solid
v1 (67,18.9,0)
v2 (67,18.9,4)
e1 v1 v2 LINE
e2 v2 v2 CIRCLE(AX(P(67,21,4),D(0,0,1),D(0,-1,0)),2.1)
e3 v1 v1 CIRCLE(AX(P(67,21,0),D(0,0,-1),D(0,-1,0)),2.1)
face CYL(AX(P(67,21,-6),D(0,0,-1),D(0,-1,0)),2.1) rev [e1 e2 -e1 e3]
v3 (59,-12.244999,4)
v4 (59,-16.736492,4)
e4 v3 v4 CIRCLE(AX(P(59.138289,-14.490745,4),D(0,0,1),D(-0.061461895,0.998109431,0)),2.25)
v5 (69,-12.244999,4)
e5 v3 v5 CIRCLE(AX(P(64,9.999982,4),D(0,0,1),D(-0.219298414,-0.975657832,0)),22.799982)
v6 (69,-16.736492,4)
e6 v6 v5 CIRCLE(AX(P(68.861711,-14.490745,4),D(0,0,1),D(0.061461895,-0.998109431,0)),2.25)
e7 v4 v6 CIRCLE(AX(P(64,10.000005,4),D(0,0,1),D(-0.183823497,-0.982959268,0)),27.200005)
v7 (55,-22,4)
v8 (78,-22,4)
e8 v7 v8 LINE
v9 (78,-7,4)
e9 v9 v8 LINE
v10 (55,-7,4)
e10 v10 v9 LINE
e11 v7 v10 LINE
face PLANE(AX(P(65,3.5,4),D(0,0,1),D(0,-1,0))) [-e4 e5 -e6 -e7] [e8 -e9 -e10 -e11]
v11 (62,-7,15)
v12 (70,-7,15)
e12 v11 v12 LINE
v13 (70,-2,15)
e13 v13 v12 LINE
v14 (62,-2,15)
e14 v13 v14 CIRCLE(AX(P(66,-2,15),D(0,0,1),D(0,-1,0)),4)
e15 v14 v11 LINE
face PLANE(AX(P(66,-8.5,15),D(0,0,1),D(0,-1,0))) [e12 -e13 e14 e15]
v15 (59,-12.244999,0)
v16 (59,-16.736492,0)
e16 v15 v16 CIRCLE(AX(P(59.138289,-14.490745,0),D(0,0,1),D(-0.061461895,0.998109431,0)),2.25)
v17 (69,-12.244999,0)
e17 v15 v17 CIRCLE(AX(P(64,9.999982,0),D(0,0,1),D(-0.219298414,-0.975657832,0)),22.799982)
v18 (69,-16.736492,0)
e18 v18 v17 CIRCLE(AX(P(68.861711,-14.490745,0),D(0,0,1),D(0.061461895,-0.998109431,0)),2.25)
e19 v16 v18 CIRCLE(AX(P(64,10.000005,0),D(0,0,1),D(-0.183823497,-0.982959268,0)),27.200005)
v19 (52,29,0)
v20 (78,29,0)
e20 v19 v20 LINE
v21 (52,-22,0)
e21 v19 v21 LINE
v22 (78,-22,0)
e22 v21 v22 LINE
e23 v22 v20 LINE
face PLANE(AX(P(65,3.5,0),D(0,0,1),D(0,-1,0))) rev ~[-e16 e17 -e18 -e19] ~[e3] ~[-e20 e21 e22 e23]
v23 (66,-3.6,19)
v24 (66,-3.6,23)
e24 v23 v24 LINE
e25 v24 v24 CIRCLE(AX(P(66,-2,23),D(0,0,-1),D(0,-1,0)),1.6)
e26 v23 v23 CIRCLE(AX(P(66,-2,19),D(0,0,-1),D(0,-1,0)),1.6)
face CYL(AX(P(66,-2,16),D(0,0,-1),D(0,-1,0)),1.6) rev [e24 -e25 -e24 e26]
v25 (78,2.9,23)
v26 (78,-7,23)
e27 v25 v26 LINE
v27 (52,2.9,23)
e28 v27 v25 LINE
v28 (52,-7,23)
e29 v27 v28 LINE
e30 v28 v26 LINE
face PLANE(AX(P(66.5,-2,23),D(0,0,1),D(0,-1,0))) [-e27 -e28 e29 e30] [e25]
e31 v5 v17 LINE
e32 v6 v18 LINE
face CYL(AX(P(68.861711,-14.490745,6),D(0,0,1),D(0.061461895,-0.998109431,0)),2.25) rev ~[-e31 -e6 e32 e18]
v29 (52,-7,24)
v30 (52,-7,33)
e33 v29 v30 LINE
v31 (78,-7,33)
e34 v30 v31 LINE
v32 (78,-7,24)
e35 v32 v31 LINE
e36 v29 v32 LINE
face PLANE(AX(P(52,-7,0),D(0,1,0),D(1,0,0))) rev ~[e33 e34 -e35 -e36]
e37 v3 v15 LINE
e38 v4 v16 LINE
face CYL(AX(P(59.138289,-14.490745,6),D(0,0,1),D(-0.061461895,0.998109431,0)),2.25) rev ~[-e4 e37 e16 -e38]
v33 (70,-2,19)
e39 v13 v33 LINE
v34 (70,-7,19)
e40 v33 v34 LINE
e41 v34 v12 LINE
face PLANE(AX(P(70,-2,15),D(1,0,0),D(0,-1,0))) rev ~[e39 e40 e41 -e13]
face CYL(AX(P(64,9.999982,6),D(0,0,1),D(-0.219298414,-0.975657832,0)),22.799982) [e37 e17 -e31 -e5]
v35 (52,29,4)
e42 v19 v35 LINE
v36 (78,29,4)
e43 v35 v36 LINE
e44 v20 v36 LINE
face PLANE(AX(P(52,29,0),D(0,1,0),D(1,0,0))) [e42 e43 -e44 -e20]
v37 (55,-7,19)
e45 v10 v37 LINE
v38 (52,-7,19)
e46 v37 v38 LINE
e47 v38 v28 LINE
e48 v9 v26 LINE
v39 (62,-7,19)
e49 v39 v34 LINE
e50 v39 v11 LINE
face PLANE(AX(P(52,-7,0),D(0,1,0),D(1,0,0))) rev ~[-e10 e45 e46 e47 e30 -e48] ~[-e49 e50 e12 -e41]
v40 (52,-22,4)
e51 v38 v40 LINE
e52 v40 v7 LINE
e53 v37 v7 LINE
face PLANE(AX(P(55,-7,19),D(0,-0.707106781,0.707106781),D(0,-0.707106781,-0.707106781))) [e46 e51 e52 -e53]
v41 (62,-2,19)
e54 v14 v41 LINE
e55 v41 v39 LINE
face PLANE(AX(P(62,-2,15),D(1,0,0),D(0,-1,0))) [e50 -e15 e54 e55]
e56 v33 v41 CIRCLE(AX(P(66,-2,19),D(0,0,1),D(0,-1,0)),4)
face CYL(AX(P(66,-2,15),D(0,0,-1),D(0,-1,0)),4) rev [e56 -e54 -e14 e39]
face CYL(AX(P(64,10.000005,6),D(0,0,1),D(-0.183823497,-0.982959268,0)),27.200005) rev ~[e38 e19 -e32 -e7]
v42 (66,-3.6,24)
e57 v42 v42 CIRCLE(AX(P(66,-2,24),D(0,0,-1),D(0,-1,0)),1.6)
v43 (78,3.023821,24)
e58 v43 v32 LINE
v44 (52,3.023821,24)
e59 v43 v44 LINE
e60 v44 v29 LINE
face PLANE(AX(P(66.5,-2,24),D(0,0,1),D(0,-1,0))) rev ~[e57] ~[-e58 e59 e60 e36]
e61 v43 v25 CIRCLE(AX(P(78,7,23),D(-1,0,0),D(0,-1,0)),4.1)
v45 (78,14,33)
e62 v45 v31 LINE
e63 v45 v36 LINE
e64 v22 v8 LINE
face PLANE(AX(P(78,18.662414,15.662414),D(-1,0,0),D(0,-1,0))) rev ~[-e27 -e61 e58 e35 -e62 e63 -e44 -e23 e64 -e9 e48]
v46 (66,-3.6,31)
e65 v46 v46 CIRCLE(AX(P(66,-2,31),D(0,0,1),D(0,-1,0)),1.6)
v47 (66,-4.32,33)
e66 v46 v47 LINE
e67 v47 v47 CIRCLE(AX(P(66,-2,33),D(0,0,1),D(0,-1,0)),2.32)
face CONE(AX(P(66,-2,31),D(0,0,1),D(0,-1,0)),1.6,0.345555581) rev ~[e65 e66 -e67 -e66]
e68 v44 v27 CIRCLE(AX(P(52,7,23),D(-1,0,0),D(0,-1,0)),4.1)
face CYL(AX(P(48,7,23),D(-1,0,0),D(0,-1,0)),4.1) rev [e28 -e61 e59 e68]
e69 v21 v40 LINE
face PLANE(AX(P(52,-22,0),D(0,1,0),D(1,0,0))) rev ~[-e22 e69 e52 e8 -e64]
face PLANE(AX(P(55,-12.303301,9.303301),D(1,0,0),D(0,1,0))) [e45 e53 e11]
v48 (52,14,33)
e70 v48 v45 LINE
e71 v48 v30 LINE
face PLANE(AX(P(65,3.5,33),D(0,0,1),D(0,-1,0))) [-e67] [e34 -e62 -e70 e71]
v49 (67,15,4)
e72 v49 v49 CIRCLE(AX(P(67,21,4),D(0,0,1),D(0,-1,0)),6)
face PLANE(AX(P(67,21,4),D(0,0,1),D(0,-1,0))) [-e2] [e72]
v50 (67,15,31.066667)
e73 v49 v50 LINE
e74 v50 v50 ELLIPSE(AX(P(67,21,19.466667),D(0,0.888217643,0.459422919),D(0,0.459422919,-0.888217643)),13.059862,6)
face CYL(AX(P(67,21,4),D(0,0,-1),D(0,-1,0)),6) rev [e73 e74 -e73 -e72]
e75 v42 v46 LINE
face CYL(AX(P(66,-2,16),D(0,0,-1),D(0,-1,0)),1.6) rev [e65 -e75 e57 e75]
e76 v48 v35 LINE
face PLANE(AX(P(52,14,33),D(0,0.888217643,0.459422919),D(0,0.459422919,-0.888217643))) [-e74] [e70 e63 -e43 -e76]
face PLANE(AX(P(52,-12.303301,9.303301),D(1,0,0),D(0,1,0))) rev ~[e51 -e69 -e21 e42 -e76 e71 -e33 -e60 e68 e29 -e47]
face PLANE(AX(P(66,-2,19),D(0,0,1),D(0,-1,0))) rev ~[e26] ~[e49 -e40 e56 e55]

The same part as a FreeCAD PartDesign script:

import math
import FreeCAD as App
import Part
import Sketcher
Q = App.Units.Quantity


def add_polygon(sketch, points):
    """Adds a closed chain of lines whose ends are joined by coincident constraints."""
    first, n = sketch.GeometryCount, len(points)
    for a, b in zip(points, points[1:] + points[:1]):
        sketch.addGeometry(Part.LineSegment(App.Vector(*a, 0), App.Vector(*b, 0)), False)
    for i in range(n):
        sketch.addConstraint(Sketcher.Constraint("Coincident", first + i, 2, first + (i + 1) % n, 1))

doc = App.newDocument("Part")
body = doc.addObject("PartDesign::Body", "Body")

# Sketch on XY plane
sketch1 = body.newObject("Sketcher::SketchObject", "Sketch")
sketch1.AttachmentSupport = (doc.getObject("XY_Plane"), [""])
sketch1.MapMode = "FlatFace"
sketch1.AttachmentOffset = App.Placement(App.Vector(0, 0, 10), App.Rotation())
sketch1.addGeometry(Part.Circle(App.Vector(0, 0, 0), App.Vector(0, 0, 1), 6), False)
sketch1.addConstraint(Sketcher.Constraint("Coincident", 0, 3, -1, 1))
sketch1.addConstraint(Sketcher.Constraint("Diameter", 0, Q("12 mm")))
pad1 = body.newObject("PartDesign::Pad", "Pad")
pad1.Profile = sketch1
pad1.Length = 30
body2 = doc.addObject("PartDesign::Body", "Body001")

# Sketch on XY plane
sketch2 = body2.newObject("Sketcher::SketchObject", "Sketch001")
sketch2.AttachmentSupport = (doc.getObject("XY_Plane001"), [""])
sketch2.MapMode = "FlatFace"
sketch2.addGeometry(Part.Circle(App.Vector(0, 0, 0), App.Vector(0, 0, 1), 2.1), False)
sketch2.addConstraint(Sketcher.Constraint("Coincident", 0, 3, -1, 1))
sketch2.addConstraint(Sketcher.Constraint("Diameter", 0, Q("4.2 mm")))
pad2 = body2.newObject("PartDesign::Pad", "Pad001")
pad2.Profile = sketch2
pad2.Length = 10
doc.recompute()

boolean = body2.newObject("PartDesign::Boolean", "Boolean")
boolean.Type = "Fuse"
boolean.addObjects([body])
body3 = doc.addObject("PartDesign::Body", "Body002")
doc.recompute()

body2.Placement = App.Placement(App.Vector(-14, 12, -29), App.Rotation(App.Vector(0, 0, 1), 0))
boolean2 = body3.newObject("PartDesign::Boolean", "Boolean001")
boolean2.Type = "Fuse"
boolean2.addObjects([body2])
body4 = doc.addObject("PartDesign::Body", "Body003")

# Sketch on XY plane
sketch3 = body4.newObject("Sketcher::SketchObject", "Sketch002")
sketch3.AttachmentSupport = (doc.getObject("XY_Plane003"), [""])
sketch3.MapMode = "FlatFace"
sketch3.addGeometry(Part.Circle(App.Vector(0, 0, 0), App.Vector(0, 0, 1), 1.6), False)
sketch3.addConstraint(Sketcher.Constraint("Coincident", 0, 3, -1, 1))
sketch3.addConstraint(Sketcher.Constraint("Diameter", 0, Q("3.2 mm")))
pad3 = body4.newObject("PartDesign::Pad", "Pad002")
pad3.Profile = sketch3
pad3.Length = 15
body5 = doc.addObject("PartDesign::Body", "Body004")

# Sketch on XZ plane
sketch4 = body5.newObject("Sketcher::SketchObject", "Sketch003")
sketch4.AttachmentSupport = (doc.getObject("XZ_Plane004"), [""])
sketch4.MapMode = "FlatFace"
add_polygon(sketch4, [(0, 15), (1.6, 15), (2.5, 17.5), (0, 17.5)])  # lines 0-3
sketch4.addConstraint(Sketcher.Constraint("Horizontal", 0))
sketch4.addConstraint(Sketcher.Constraint("Horizontal", 2))
sketch4.addConstraint(Sketcher.Constraint("Vertical", 3))
sketch4.addConstraint(Sketcher.Constraint("PointOnObject", 2, 2, -2))
sketch4.addConstraint(Sketcher.Constraint("Equal", 2, 3))
sketch4.addConstraint(Sketcher.Constraint("DistanceX", 0, 1, 0, 2, Q("1.6 mm")))
sketch4.addConstraint(Sketcher.Constraint("DistanceX", 2, 2, 2, 1, Q("2.5 mm")))
sketch4.addConstraint(Sketcher.Constraint("DistanceY", -1, 1, 0, 2, Q("15 mm")))
revolution = body5.newObject("PartDesign::Revolution", "Revolution")
revolution.Profile = sketch4
revolution.ReferenceAxis = (sketch4, ["V_Axis"])
revolution.Angle = 360
doc.recompute()

boolean3 = body5.newObject("PartDesign::Boolean", "Boolean002")
boolean3.Type = "Fuse"
boolean3.addObjects([body4])
body6 = doc.addObject("PartDesign::Body", "Body005")
doc.recompute()

body5.Placement = App.Placement(App.Vector(9, 11, -7), App.Rotation(App.Vector(0, 0, 1), 0))
boolean4 = body6.newObject("PartDesign::Boolean", "Boolean003")
boolean4.Type = "Fuse"
boolean4.addObjects([body5])
body7 = doc.addObject("PartDesign::Body", "Body006")

# Sketch on XY plane
sketch5 = body7.newObject("Sketcher::SketchObject", "Sketch004")
sketch5.AttachmentSupport = (doc.getObject("XY_Plane006"), [""])
sketch5.MapMode = "FlatFace"
sketch5.AttachmentOffset = App.Placement(App.Vector(0, 0, -8), App.Rotation())
sketch5.addGeometry(Part.Circle(App.Vector(9, 11, 0), App.Vector(0, 0, 1), 4), False)
sketch5.addConstraint(Sketcher.Constraint("Diameter", 0, Q("8 mm")))
sketch5.addConstraint(Sketcher.Constraint("DistanceX", -1, 1, 0, 3, Q("9 mm")))
sketch5.addConstraint(Sketcher.Constraint("DistanceY", -1, 1, 0, 3, Q("11 mm")))
pad4 = body7.newObject("PartDesign::Pad", "Pad003")
pad4.Profile = sketch5
pad4.Length = 4
body8 = doc.addObject("PartDesign::Body", "Body007")

# Sketch on XY plane
sketch6 = body8.newObject("Sketcher::SketchObject", "Sketch005")
sketch6.AttachmentSupport = (doc.getObject("XY_Plane007"), [""])
sketch6.MapMode = "FlatFace"
sketch6.AttachmentOffset = App.Placement(App.Vector(0, 0, -8), App.Rotation())
add_polygon(sketch6, [(9, 15), (9, 7), (22, 7), (22, 15)])  # lines 0-3
sketch6.addConstraint(Sketcher.Constraint("Vertical", 0))
sketch6.addConstraint(Sketcher.Constraint("Horizontal", 1))
sketch6.addConstraint(Sketcher.Constraint("Vertical", 2))
sketch6.addConstraint(Sketcher.Constraint("Horizontal", 3))
sketch6.addConstraint(Sketcher.Constraint("DistanceX", 1, 1, 1, 2, Q("13 mm")))
sketch6.addConstraint(Sketcher.Constraint("DistanceY", 0, 2, 0, 1, Q("8 mm")))
sketch6.addConstraint(Sketcher.Constraint("DistanceX", -1, 1, 0, 2, Q("9 mm")))
sketch6.addConstraint(Sketcher.Constraint("DistanceY", -1, 1, 0, 2, Q("7 mm")))
pad5 = body8.newObject("PartDesign::Pad", "Pad004")
pad5.Profile = sketch6
pad5.Length = 4
doc.recompute()

boolean5 = body8.newObject("PartDesign::Boolean", "Boolean004")
boolean5.Type = "Fuse"
boolean5.addObjects([body7])
body9 = doc.addObject("PartDesign::Body", "Body008")

# Sketch on XZ plane
sketch7 = body9.newObject("Sketcher::SketchObject", "Sketch006")
sketch7.AttachmentSupport = (doc.getObject("XZ_Plane008"), [""])
sketch7.MapMode = "FlatFace"
add_polygon(sketch7, [(-22, -19), (-7, -19), (-7, -4)])  # lines 0-2
sketch7.addConstraint(Sketcher.Constraint("Horizontal", 0))
sketch7.addConstraint(Sketcher.Constraint("Vertical", 1))
sketch7.addConstraint(Sketcher.Constraint("Equal", 0, 1))
sketch7.addConstraint(Sketcher.Constraint("DistanceX", 0, 1, 0, 2, Q("15 mm")))
sketch7.addConstraint(Sketcher.Constraint("DistanceX", 0, 2, -1, 1, Q("7 mm")))
sketch7.addConstraint(Sketcher.Constraint("DistanceY", 0, 2, -1, 1, Q("19 mm")))
pad6 = body9.newObject("PartDesign::Pad", "Pad005")
pad6.Profile = sketch7
pad6.Length = 3
pad6.Reversed = True
body10 = doc.addObject("PartDesign::Body", "Body009")
doc.recompute()

body9.Placement = App.Placement(App.Vector(7, 0, 0), App.Rotation(App.Vector(0, 0, 1), 180))
boolean6 = body10.newObject("PartDesign::Boolean", "Boolean005")
boolean6.Type = "Fuse"
boolean6.addObjects([body9])
body11 = doc.addObject("PartDesign::Body", "Body010")

# Sketch on XY plane
sketch8 = body11.newObject("Sketcher::SketchObject", "Sketch007")
sketch8.AttachmentSupport = (doc.getObject("XY_Plane010"), [""])
sketch8.MapMode = "FlatFace"
sketch8.addGeometry(Part.ArcOfCircle(Part.Circle(App.Vector(9, 15, 0), App.Vector(0, 0, 1), 27.2), math.radians(-11), math.radians(11)), False)
sketch8.addGeometry(Part.ArcOfCircle(Part.Circle(App.Vector(33.5, 19.9, 0), App.Vector(0, 0, 1), 2.3), math.radians(4), math.radians(176)), False)
sketch8.addGeometry(Part.ArcOfCircle(Part.Circle(App.Vector(9, 15, 0), App.Vector(0, 0, 1), 22.8), math.radians(-13), math.radians(13)), False)
sketch8.addGeometry(Part.ArcOfCircle(Part.Circle(App.Vector(33.5, 10.1, 0), App.Vector(0, 0, 1), 2.3), math.radians(-176), math.radians(-4)), False)
sketch8.addConstraint(Sketcher.Constraint("Coincident", 0, 2, 1, 1))
sketch8.addConstraint(Sketcher.Constraint("Coincident", 1, 2, 2, 2))
sketch8.addConstraint(Sketcher.Constraint("Coincident", 2, 1, 3, 1))
sketch8.addConstraint(Sketcher.Constraint("Coincident", 3, 2, 0, 1))
sketch8.addConstraint(Sketcher.Constraint("Equal", 1, 3))
sketch8.addConstraint(Sketcher.Constraint("Horizontal", 0, 3, 2, 3))
sketch8.addConstraint(Sketcher.Constraint("Horizontal", 0, 2, 1, 2))
sketch8.addConstraint(Sketcher.Constraint("Horizontal", 2, 1, 3, 2))
sketch8.addConstraint(Sketcher.Constraint("Vertical", 1, 3, 3, 3))
sketch8.addConstraint(Sketcher.Constraint("Radius", 1, Q("2.25 mm")))
sketch8.addConstraint(Sketcher.Constraint("DistanceY", -1, 1, 0, 3, Q("15 mm")))
sketch8.addConstraint(Sketcher.Constraint("DistanceY", -1, 1, 0, 2, Q("20 mm")))
sketch8.addConstraint(Sketcher.Constraint("DistanceX", -1, 1, 1, 2, Q("31.244999 mm")))
sketch8.addConstraint(Sketcher.Constraint("Radius", 0, Q("27.200005 mm")))
sketch8.addConstraint(Sketcher.Constraint("Radius", 2, Q("22.799982 mm")))
sketch8.addConstraint(Sketcher.Constraint("DistanceY", -1, 1, 1, 3, Q("19.861711 mm")))
pad7 = body11.newObject("PartDesign::Pad", "Pad006")
pad7.Profile = sketch8
pad7.Length = 10
pad7.Reversed = True
body12 = doc.addObject("PartDesign::Body", "Body011")
doc.recompute()

body11.Placement = App.Placement(App.Vector(-12, -3, -17), App.Rotation(App.Vector(0, 0, 1), 0))
boolean7 = body12.newObject("PartDesign::Boolean", "Boolean006")
boolean7.Type = "Fuse"
boolean7.addObjects([body11])
body13 = doc.addObject("PartDesign::Body", "Body012")

# Sketch on XY plane
sketch9 = body13.newObject("Sketcher::SketchObject", "Sketch008")
sketch9.AttachmentSupport = (doc.getObject("XY_Plane012"), [""])
sketch9.MapMode = "FlatFace"
sketch9.AttachmentOffset = App.Placement(App.Vector(0, 0, -23), App.Rotation())
add_polygon(sketch9, [(-22, 26), (-22, 0), (29, 0), (29, 26)])  # lines 0-3
sketch9.addConstraint(Sketcher.Constraint("Vertical", 0))
sketch9.addConstraint(Sketcher.Constraint("Horizontal", 1))
sketch9.addConstraint(Sketcher.Constraint("Vertical", 2))
sketch9.addConstraint(Sketcher.Constraint("Horizontal", 3))
sketch9.addConstraint(Sketcher.Constraint("PointOnObject", 0, 2, -1))
sketch9.addConstraint(Sketcher.Constraint("DistanceX", 1, 1, 1, 2, Q("51 mm")))
sketch9.addConstraint(Sketcher.Constraint("DistanceY", 0, 2, 0, 1, Q("26 mm")))
sketch9.addConstraint(Sketcher.Constraint("DistanceX", 0, 2, -1, 1, Q("22 mm")))
pad8 = body13.newObject("PartDesign::Pad", "Pad007")
pad8.Profile = sketch9
pad8.Length = 4
doc.recompute()

boolean8 = body13.newObject("PartDesign::Boolean", "Boolean007")
boolean8.Type = "Cut"
boolean8.addObjects([body12])
body14 = doc.addObject("PartDesign::Body", "Body013")
doc.recompute()

body13.Placement = App.Placement(App.Vector(0, -3, 0), App.Rotation(App.Vector(0, 0, 1), 0))
boolean9 = body14.newObject("PartDesign::Boolean", "Boolean008")
boolean9.Type = "Fuse"
boolean9.addObjects([body13])
body15 = doc.addObject("PartDesign::Body", "Body014")

# Sketch on XZ plane
sketch10 = body15.newObject("Sketcher::SketchObject", "Sketch009")
sketch10.AttachmentSupport = (doc.getObject("XZ_Plane014"), [""])
sketch10.MapMode = "FlatFace"
add_polygon(sketch10, [(-22, -19), (-7, -19), (-7, 10)])  # lines 0-2
sketch10.addConstraint(Sketcher.Constraint("Horizontal", 0))
sketch10.addConstraint(Sketcher.Constraint("Vertical", 1))
sketch10.addConstraint(Sketcher.Constraint("DistanceX", 0, 1, 0, 2, Q("15 mm")))
sketch10.addConstraint(Sketcher.Constraint("DistanceY", 1, 1, 1, 2, Q("29 mm")))
sketch10.addConstraint(Sketcher.Constraint("DistanceX", 0, 2, -1, 1, Q("7 mm")))
sketch10.addConstraint(Sketcher.Constraint("DistanceY", 0, 2, -1, 1, Q("19 mm")))
pad9 = body15.newObject("PartDesign::Pad", "Pad008")
pad9.Profile = sketch10
pad9.Length = 26
pad9.Reversed = True
body16 = doc.addObject("PartDesign::Body", "Body015")
doc.recompute()

body15.Placement = App.Placement(App.Vector(0, -3, 0), App.Rotation(App.Vector(0, 0, 1), 0))
boolean10 = body16.newObject("PartDesign::Boolean", "Boolean009")
boolean10.Type = "Fuse"
boolean10.addObjects([body15])
body17 = doc.addObject("PartDesign::Body", "Body016")

# Sketch on XZ plane
sketch11 = body17.newObject("Sketcher::SketchObject", "Sketch010")
sketch11.AttachmentSupport = (doc.getObject("XZ_Plane016"), [""])
sketch11.MapMode = "FlatFace"
sketch11.AttachmentOffset = App.Placement(App.Vector(0, 0, 7), App.Rotation())
sketch11.addGeometry(Part.Circle(App.Vector(0, 0, 0), App.Vector(0, 0, 1), 4.1), False)
sketch11.addConstraint(Sketcher.Constraint("Coincident", 0, 3, -1, 1))
sketch11.addConstraint(Sketcher.Constraint("Diameter", 0, Q("8.2 mm")))
pad10 = body17.newObject("PartDesign::Pad", "Pad009")
pad10.Profile = sketch11
pad10.Length = 240
pad10.Reversed = True
body18 = doc.addObject("PartDesign::Body", "Body017")

# Sketch on XY plane
sketch12 = body18.newObject("Sketcher::SketchObject", "Sketch011")
sketch12.AttachmentSupport = (doc.getObject("XY_Plane017"), [""])
sketch12.MapMode = "FlatFace"
add_polygon(sketch12, [(3, 29), (3, -6), (15, -6), (15, 29)])  # lines 0-3
sketch12.addConstraint(Sketcher.Constraint("Vertical", 0))
sketch12.addConstraint(Sketcher.Constraint("Horizontal", 1))
sketch12.addConstraint(Sketcher.Constraint("Vertical", 2))
sketch12.addConstraint(Sketcher.Constraint("Horizontal", 3))
sketch12.addConstraint(Sketcher.Constraint("DistanceX", 1, 1, 1, 2, Q("12 mm")))
sketch12.addConstraint(Sketcher.Constraint("DistanceY", 0, 2, 0, 1, Q("35 mm")))
sketch12.addConstraint(Sketcher.Constraint("DistanceX", -1, 1, 0, 2, Q("3 mm")))
sketch12.addConstraint(Sketcher.Constraint("DistanceY", 0, 2, -1, 1, Q("6 mm")))
pad11 = body18.newObject("PartDesign::Pad", "Pad010")
pad11.Profile = sketch12
pad11.Length = 1
body19 = doc.addObject("PartDesign::Body", "Body018")

# Sketch on XY plane
sketch13 = body19.newObject("Sketcher::SketchObject", "Sketch012")
sketch13.AttachmentSupport = (doc.getObject("XY_Plane018"), [""])
sketch13.MapMode = "FlatFace"
sketch13.AttachmentOffset = App.Placement(App.Vector(0, 0, -23), App.Rotation())
add_polygon(sketch13, [(-7, 23), (-7, -3), (14, -3), (14, 23)])  # lines 0-3
sketch13.addConstraint(Sketcher.Constraint("Vertical", 0))
sketch13.addConstraint(Sketcher.Constraint("Horizontal", 1))
sketch13.addConstraint(Sketcher.Constraint("Vertical", 2))
sketch13.addConstraint(Sketcher.Constraint("Horizontal", 3))
sketch13.addConstraint(Sketcher.Constraint("DistanceX", 1, 1, 1, 2, Q("21 mm")))
sketch13.addConstraint(Sketcher.Constraint("DistanceY", 0, 2, 0, 1, Q("26 mm")))
sketch13.addConstraint(Sketcher.Constraint("DistanceX", 0, 2, -1, 1, Q("7 mm")))
sketch13.addConstraint(Sketcher.Constraint("DistanceY", 0, 2, -1, 1, Q("3 mm")))
pad12 = body19.newObject("PartDesign::Pad", "Pad011")
pad12.Profile = sketch13
pad12.Length = 33
doc.recompute()

boolean11 = body19.newObject("PartDesign::Boolean", "Boolean010")
boolean11.Type = "Cut"
boolean11.addObjects([body18])
doc.recompute()

boolean12 = body19.newObject("PartDesign::Boolean", "Boolean011")
boolean12.Type = "Cut"
boolean12.addObjects([body17])
doc.recompute()

boolean13 = body19.newObject("PartDesign::Boolean", "Boolean012")
boolean13.Type = "Fuse"
boolean13.addObjects([body14])
doc.recompute()

boolean14 = body19.newObject("PartDesign::Boolean", "Boolean013")
boolean14.Type = "Fuse"
boolean14.addObjects([body16])
doc.recompute()

boolean15 = body19.newObject("PartDesign::Boolean", "Boolean014")
boolean15.Type = "Fuse"
boolean15.addObjects([body10])
doc.recompute()

boolean16 = body19.newObject("PartDesign::Boolean", "Boolean015")
boolean16.Type = "Cut"
boolean16.addObjects([body8])
doc.recompute()

boolean17 = body19.newObject("PartDesign::Boolean", "Boolean016")
boolean17.Type = "Cut"
boolean17.addObjects([body6])
doc.recompute()

boolean18 = body19.newObject("PartDesign::Boolean", "Boolean017")
boolean18.Type = "Cut"
boolean18.addObjects([body3])
body20 = doc.addObject("PartDesign::Body", "Body019")
doc.recompute()

body19.Placement = App.Placement(App.Vector(55, 7, 23), App.Rotation(App.Vector(0, 0, -1), 90))
boolean19 = body20.newObject("PartDesign::Boolean", "Boolean018")
boolean19.Type = "Fuse"
boolean19.addObjects([body19])

doc.recompute()
